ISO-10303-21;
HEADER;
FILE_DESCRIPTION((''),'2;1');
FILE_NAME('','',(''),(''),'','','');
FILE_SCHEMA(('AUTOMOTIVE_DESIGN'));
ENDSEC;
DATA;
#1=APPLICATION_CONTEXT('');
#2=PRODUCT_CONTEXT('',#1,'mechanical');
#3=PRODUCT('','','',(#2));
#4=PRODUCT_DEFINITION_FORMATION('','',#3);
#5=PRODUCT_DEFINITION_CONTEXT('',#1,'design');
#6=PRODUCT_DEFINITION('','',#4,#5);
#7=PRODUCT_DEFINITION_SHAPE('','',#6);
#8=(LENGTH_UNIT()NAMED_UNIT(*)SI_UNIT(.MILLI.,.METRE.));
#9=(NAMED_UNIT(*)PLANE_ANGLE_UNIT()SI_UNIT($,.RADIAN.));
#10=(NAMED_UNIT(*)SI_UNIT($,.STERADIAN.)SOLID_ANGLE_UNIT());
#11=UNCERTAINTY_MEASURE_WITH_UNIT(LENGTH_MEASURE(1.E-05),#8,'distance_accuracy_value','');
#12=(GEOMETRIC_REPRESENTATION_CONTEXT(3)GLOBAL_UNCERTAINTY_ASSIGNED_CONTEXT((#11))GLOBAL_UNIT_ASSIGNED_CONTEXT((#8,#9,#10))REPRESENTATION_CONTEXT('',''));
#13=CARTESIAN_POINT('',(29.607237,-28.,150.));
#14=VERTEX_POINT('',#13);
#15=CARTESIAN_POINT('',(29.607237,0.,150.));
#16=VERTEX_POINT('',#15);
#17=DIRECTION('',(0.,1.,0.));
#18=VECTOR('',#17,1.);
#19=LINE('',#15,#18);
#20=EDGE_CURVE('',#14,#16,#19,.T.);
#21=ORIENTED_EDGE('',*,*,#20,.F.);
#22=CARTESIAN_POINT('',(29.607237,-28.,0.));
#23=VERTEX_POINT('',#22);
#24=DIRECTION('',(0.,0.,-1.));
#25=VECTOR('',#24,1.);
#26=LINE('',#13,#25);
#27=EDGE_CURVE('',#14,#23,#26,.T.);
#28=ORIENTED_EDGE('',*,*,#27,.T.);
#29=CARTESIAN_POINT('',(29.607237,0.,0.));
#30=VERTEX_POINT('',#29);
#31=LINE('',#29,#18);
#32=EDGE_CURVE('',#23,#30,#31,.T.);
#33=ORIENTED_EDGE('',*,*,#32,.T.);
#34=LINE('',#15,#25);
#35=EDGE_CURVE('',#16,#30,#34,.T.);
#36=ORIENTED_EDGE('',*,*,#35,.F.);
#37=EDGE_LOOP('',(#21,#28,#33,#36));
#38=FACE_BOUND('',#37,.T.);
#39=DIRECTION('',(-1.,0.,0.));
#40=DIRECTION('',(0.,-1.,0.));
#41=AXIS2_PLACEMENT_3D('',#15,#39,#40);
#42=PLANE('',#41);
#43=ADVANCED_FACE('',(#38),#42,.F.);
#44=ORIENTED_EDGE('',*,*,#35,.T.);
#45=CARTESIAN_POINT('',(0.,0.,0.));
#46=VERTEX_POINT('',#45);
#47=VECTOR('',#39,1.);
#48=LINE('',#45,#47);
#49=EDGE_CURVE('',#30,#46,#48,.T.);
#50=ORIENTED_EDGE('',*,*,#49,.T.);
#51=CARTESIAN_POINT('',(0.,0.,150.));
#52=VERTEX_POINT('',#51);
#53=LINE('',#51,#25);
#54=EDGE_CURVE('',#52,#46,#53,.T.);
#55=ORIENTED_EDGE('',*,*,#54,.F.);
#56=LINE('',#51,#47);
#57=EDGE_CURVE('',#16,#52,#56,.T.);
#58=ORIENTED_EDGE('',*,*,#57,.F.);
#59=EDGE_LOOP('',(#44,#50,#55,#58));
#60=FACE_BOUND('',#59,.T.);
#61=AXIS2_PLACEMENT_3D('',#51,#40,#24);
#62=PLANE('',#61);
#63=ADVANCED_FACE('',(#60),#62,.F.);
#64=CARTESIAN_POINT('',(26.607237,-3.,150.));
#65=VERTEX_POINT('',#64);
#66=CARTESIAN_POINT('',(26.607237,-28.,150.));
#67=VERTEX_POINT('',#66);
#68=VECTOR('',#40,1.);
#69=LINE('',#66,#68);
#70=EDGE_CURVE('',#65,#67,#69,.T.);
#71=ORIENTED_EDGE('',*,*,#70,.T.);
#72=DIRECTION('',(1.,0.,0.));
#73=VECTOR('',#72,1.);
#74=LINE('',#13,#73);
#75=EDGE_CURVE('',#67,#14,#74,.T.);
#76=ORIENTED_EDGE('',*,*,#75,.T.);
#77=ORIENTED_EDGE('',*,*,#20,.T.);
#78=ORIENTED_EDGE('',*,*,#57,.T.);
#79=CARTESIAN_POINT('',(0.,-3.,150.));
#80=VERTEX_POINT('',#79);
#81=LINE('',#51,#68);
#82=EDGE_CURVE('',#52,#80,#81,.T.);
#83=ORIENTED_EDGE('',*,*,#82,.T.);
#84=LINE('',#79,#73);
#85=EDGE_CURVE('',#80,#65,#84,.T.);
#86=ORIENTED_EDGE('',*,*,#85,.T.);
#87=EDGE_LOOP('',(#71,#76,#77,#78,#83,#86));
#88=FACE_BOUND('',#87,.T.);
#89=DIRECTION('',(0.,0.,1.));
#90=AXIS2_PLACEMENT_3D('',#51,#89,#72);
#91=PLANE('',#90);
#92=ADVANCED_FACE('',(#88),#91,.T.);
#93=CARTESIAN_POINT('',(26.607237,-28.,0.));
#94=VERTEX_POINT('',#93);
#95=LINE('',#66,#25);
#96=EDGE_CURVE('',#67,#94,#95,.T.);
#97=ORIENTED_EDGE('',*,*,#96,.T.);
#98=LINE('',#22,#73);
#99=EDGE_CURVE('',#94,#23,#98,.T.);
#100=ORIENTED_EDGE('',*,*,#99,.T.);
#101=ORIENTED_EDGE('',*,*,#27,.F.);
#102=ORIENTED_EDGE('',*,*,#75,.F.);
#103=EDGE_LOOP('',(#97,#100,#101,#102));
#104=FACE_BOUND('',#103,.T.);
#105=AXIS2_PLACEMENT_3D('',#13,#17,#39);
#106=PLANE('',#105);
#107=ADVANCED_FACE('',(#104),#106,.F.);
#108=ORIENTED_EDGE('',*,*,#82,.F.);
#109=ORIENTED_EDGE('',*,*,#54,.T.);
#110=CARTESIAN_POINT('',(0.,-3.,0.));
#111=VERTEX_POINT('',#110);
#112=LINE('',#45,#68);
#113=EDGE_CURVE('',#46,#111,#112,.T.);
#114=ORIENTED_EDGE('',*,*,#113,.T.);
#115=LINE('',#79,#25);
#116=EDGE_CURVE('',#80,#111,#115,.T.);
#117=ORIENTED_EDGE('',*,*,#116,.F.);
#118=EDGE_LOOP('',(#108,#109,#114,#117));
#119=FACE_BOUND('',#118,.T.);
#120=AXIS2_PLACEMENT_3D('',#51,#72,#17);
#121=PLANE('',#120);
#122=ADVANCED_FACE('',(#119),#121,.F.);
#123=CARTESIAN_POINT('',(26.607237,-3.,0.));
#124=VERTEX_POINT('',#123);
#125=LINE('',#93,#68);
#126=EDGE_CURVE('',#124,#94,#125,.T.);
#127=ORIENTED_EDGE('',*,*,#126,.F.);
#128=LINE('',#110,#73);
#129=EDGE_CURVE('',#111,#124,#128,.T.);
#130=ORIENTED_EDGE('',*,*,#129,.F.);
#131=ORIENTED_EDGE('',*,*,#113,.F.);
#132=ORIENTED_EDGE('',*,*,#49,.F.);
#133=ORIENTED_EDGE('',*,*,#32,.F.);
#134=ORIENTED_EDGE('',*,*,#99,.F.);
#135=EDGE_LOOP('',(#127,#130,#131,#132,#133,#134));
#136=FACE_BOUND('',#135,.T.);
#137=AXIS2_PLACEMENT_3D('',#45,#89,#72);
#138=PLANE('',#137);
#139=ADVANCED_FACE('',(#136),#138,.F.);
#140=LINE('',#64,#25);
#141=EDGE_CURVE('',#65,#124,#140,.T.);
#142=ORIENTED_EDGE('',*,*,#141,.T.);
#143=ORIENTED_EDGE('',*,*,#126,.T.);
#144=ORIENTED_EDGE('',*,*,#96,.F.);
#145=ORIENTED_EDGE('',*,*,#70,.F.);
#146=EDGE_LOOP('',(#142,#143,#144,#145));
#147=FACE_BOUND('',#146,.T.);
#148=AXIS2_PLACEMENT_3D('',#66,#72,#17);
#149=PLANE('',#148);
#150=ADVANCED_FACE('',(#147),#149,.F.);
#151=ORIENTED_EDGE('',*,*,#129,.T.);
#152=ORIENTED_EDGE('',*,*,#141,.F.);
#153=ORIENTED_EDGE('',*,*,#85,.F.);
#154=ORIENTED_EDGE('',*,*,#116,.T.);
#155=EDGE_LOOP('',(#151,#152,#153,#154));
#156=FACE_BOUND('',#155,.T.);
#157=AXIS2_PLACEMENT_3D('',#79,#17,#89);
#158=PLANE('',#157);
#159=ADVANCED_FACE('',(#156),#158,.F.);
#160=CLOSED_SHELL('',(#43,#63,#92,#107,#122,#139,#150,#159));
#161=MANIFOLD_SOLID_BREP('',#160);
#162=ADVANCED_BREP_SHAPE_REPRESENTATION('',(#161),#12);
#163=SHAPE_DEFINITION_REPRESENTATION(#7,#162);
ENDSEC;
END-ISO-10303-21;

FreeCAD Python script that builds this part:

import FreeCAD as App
import Part
import Sketcher
from FreeCAD import Vector


def add_polygon(sketch, points):
    """Adds a closed chain of lines whose ends are joined by coincident constraints."""
    first, n = sketch.GeometryCount, len(points)
    for a, b in zip(points, points[1:] + points[:1]):
        sketch.addGeometry(Part.LineSegment(App.Vector(*a, 0), App.Vector(*b, 0)), False)
    for i in range(n):
        sketch.addConstraint(Sketcher.Constraint("Coincident", first + i, 2, first + (i + 1) % n, 1))

doc = App.newDocument("Part")
body = doc.addObject("PartDesign::Body", "Body")

# Sketch on XY plane
sketch1 = body.newObject("Sketcher::SketchObject", "Sketch")
sketch1.AttachmentSupport = (doc.getObject("XY_Plane"), [""])
sketch1.MapMode = "FlatFace"
add_polygon(sketch1, [(29.6, 0), (0, 0), (0, -3), (26.6, -3), (26.6, -28), (29.6, -28)])  # lines 0-5
sketch1.addConstraint([
    Sketcher.Constraint("Horizontal", 0),
    Sketcher.Constraint("Vertical", 1),
    Sketcher.Constraint("Horizontal", 2),
    Sketcher.Constraint("Vertical", 3),
    Sketcher.Constraint("Horizontal", 4),
    Sketcher.Constraint("Vertical", 5),
    Sketcher.Constraint("Coincident", 0, 2, -1, 1),
    Sketcher.Constraint("Equal", 4, 1),
    Sketcher.Constraint("DistanceX", 4, 1, 4, 2, 3.0),
    Sketcher.Constraint("DistanceY", 3, 2, 3, 1, 25.0),
    Sketcher.Constraint("DistanceX", 0, 2, 0, 1, 29.607237),
])
pad1 = body.newObject("PartDesign::Pad", "Pad")
pad1.Profile = sketch1
pad1.Length = 150

doc.recompute()
